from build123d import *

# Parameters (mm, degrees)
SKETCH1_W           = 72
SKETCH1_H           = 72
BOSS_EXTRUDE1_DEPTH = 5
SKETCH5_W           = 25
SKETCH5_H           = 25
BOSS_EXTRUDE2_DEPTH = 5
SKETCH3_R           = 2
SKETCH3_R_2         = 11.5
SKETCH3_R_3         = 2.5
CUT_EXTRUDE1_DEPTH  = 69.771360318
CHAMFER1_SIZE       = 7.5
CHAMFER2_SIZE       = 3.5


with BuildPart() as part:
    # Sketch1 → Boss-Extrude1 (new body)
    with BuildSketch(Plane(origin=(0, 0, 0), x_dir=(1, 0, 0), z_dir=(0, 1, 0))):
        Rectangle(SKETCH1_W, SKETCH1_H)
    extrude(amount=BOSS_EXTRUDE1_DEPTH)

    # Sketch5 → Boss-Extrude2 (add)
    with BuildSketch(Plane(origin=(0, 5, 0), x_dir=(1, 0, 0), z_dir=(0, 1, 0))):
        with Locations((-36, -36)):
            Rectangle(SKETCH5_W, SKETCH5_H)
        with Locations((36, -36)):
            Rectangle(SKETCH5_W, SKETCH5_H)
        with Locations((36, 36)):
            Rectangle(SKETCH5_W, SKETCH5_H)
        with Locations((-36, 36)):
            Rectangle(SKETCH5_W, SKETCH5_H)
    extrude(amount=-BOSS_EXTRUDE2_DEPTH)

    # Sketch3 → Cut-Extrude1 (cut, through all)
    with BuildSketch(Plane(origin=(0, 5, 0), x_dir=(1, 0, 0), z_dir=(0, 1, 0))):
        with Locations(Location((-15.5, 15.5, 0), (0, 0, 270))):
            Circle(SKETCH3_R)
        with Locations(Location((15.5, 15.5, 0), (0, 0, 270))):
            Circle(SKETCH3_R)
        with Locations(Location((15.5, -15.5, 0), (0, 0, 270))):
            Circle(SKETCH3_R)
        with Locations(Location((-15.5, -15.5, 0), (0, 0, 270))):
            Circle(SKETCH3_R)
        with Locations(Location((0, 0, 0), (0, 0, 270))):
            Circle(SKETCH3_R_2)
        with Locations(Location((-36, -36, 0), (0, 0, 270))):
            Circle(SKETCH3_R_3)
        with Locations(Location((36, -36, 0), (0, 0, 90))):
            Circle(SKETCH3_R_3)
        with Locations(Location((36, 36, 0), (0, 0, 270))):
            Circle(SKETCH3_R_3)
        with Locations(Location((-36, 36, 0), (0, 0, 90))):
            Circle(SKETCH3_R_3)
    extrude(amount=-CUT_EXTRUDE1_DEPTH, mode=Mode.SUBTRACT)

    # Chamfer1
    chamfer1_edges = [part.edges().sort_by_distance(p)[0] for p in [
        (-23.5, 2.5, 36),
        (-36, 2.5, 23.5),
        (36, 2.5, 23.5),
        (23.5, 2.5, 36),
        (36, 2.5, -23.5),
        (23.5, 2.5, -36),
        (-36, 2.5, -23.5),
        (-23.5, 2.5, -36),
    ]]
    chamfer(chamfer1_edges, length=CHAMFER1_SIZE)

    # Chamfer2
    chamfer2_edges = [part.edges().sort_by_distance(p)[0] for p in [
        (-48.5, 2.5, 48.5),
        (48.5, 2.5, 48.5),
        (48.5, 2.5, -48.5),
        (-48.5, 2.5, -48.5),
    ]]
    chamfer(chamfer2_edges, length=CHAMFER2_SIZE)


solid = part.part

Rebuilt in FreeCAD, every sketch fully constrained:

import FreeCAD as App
import Part
import Sketcher
from FreeCAD import Vector
Q = App.Units.Quantity


def edges_at(feature, points):
    """Names of the edges that pass closest to the given points."""
    edges = feature.Shape.Edges
    near = lambda p: min(range(len(edges)), key=lambda i: edges[i].distToShape(Part.Vertex(*p))[0])
    return sorted({f"Edge{near(p) + 1}" for p in points})


def add_polygon(sketch, points):
    """Adds a closed chain of lines whose ends are joined by coincident constraints."""
    first, n = sketch.GeometryCount, len(points)
    for a, b in zip(points, points[1:] + points[:1]):
        sketch.addGeometry(Part.LineSegment(App.Vector(*a, 0), App.Vector(*b, 0)), False)
    for i in range(n):
        sketch.addConstraint(Sketcher.Constraint("Coincident", first + i, 2, first + (i + 1) % n, 1))

doc = App.newDocument("Part")
body = doc.addObject("PartDesign::Body", "Body")

# Sketch on XZ plane
sketch1 = body.newObject("Sketcher::SketchObject", "Sketch")
sketch1.AttachmentSupport = (doc.getObject("XZ_Plane"), [""])
sketch1.MapMode = "FlatFace"
add_polygon(sketch1, [(-36, -36), (-36, 36), (36, 36), (36, -36)])  # lines 0-3
sketch1.addConstraint(Sketcher.Constraint("Vertical", 0))
sketch1.addConstraint(Sketcher.Constraint("Horizontal", 1))
sketch1.addConstraint(Sketcher.Constraint("Vertical", 2))
sketch1.addConstraint(Sketcher.Constraint("Horizontal", 3))
sketch1.addConstraint(Sketcher.Constraint("Symmetric", 0, 2, 2, 2, -1, 1))
sketch1.addConstraint(Sketcher.Constraint("Equal", 3, 0))
sketch1.addConstraint(Sketcher.Constraint("DistanceX", 1, 1, 1, 2, Q("72 mm")))
pad1 = body.newObject("PartDesign::Pad", "Pad")
pad1.Profile = sketch1
pad1.Length = 5
pad1.Reversed = True

# Sketch on XZ plane
sketch2 = body.newObject("Sketcher::SketchObject", "Sketch001")
sketch2.AttachmentSupport = (doc.getObject("XZ_Plane"), [""])
sketch2.MapMode = "FlatFace"
sketch2.AttachmentOffset = App.Placement(Vector(0, 0, -5), App.Rotation())
add_polygon(sketch2, [(-48, 24), (-48, 48), (-24, 48), (-24, 24)])  # lines 0-3
add_polygon(sketch2, [(24, 24), (24, 48), (48, 48), (48, 24)])  # lines 4-7
add_polygon(sketch2, [(24, -48), (24, -24), (48, -24), (48, -48)])  # lines 8-11
add_polygon(sketch2, [(-48, -48), (-48, -24), (-24, -24), (-24, -48)])  # lines 12-15
sketch2.addConstraint(Sketcher.Constraint("Vertical", 0))
sketch2.addConstraint(Sketcher.Constraint("Horizontal", 1))
sketch2.addConstraint(Sketcher.Constraint("Vertical", 2))
sketch2.addConstraint(Sketcher.Constraint("Horizontal", 3))
sketch2.addConstraint(Sketcher.Constraint("Vertical", 4))
sketch2.addConstraint(Sketcher.Constraint("Horizontal", 5))
sketch2.addConstraint(Sketcher.Constraint("Vertical", 6))
sketch2.addConstraint(Sketcher.Constraint("Horizontal", 7))
sketch2.addConstraint(Sketcher.Constraint("Vertical", 8))
sketch2.addConstraint(Sketcher.Constraint("Horizontal", 9))
sketch2.addConstraint(Sketcher.Constraint("Vertical", 10))
sketch2.addConstraint(Sketcher.Constraint("Horizontal", 11))
sketch2.addConstraint(Sketcher.Constraint("Vertical", 12))
sketch2.addConstraint(Sketcher.Constraint("Horizontal", 13))
sketch2.addConstraint(Sketcher.Constraint("Vertical", 14))
sketch2.addConstraint(Sketcher.Constraint("Horizontal", 15))
sketch2.addConstraint(Sketcher.Constraint("Symmetric", 2, 2, 8, 2, -1, 1))
sketch2.addConstraint(Sketcher.Constraint("Symmetric", 0, 2, 10, 2, -1, 1))
sketch2.addConstraint(Sketcher.Constraint("Symmetric", 6, 2, 12, 2, -1, 1))
sketch2.addConstraint(Sketcher.Constraint("Symmetric", 4, 2, 14, 2, -1, 1))
sketch2.addConstraint(Sketcher.Constraint("Symmetric", 1, 2, 4, 2, -2))
sketch2.addConstraint(Sketcher.Constraint("Symmetric", 3, 2, 6, 2, -2))
sketch2.addConstraint(Sketcher.Constraint("Equal", 15, 0))
sketch2.addConstraint(Sketcher.Constraint("DistanceX", 1, 1, 1, 2, Q("25 mm")))
sketch2.addConstraint(Sketcher.Constraint("DistanceX", 1, 2, 4, 2, Q("47 mm")))
sketch2.addConstraint(Sketcher.Constraint("DistanceY", 8, 2, 7, 2, Q("47 mm")))
pad2 = body.newObject("PartDesign::Pad", "Pad001")
pad2.Profile = sketch2
pad2.Length = 5

# Sketch on XZ plane
sketch3 = body.newObject("Sketcher::SketchObject", "Sketch002")
sketch3.AttachmentSupport = (doc.getObject("XZ_Plane"), [""])
sketch3.MapMode = "FlatFace"
sketch3.AttachmentOffset = App.Placement(Vector(0, 0, -5), App.Rotation())
sketch3.addGeometry(Part.Circle(Vector(-15.5, -15.5, 0), Vector(0, 0, 1), 2), False)
sketch3.addGeometry(Part.Circle(Vector(15.5, -15.5, 0), Vector(0, 0, 1), 2), False)
sketch3.addGeometry(Part.Circle(Vector(15.5, 15.5, 0), Vector(0, 0, 1), 2), False)
sketch3.addGeometry(Part.Circle(Vector(-15.5, 15.5, 0), Vector(0, 0, 1), 2), False)
sketch3.addGeometry(Part.Circle(Vector(0, 0, 0), Vector(0, 0, 1), 11.5), False)
sketch3.addGeometry(Part.Circle(Vector(-36, 36, 0), Vector(0, 0, 1), 2.5), False)
sketch3.addGeometry(Part.Circle(Vector(36, 36, 0), Vector(0, 0, 1), 2.5), False)
sketch3.addGeometry(Part.Circle(Vector(36, -36, 0), Vector(0, 0, 1), 2.5), False)
sketch3.addGeometry(Part.Circle(Vector(-36, -36, 0), Vector(0, 0, 1), 2.5), False)
sketch3.addConstraint(Sketcher.Constraint("Coincident", 4, 3, -1, 1))
sketch3.addConstraint(Sketcher.Constraint("Equal", 0, 1))
sketch3.addConstraint(Sketcher.Constraint("Equal", 1, 2))
sketch3.addConstraint(Sketcher.Constraint("Equal", 2, 3))
sketch3.addConstraint(Sketcher.Constraint("Equal", 5, 6))
sketch3.addConstraint(Sketcher.Constraint("Equal", 6, 7))
sketch3.addConstraint(Sketcher.Constraint("Equal", 7, 8))
sketch3.addConstraint(Sketcher.Constraint("Symmetric", 0, 3, 2, 3, -1, 1))
sketch3.addConstraint(Sketcher.Constraint("Symmetric", 1, 3, 3, 3, -1, 1))
sketch3.addConstraint(Sketcher.Constraint("Symmetric", 5, 3, 7, 3, -1, 1))
sketch3.addConstraint(Sketcher.Constraint("Symmetric", 6, 3, 8, 3, -1, 1))
sketch3.addConstraint(Sketcher.Constraint("Symmetric", 0, 3, 1, 3, -2))
sketch3.addConstraint(Sketcher.Constraint("Symmetric", 5, 3, 6, 3, -2))
sketch3.addConstraint(Sketcher.Constraint("Diameter", 0, Q("4 mm")))
sketch3.addConstraint(Sketcher.Constraint("Diameter", 4, Q("23 mm")))
sketch3.addConstraint(Sketcher.Constraint("Diameter", 5, Q("5 mm")))
sketch3.addConstraint(Sketcher.Constraint("DistanceX", 5, 3, -1, 1, Q("36 mm")))
sketch3.addConstraint(Sketcher.Constraint("DistanceY", -1, 1, 5, 3, Q("36 mm")))
sketch3.addConstraint(Sketcher.Constraint("DistanceX", 0, 3, 1, 3, Q("31 mm")))
sketch3.addConstraint(Sketcher.Constraint("DistanceY", 1, 3, 2, 3, Q("31 mm")))
pocket1 = body.newObject("PartDesign::Pocket", "Pocket")
pocket1.Profile = sketch3
pocket1.Type = "ThroughAll"
pocket1.Reversed = True
doc.recompute()

chamfer = body.newObject("PartDesign::Chamfer", "Chamfer")
chamfer.Base = (pocket1, edges_at(pocket1, [
    (-23.5, 2.5, 36),
    (-36, 2.5, 23.5),
    (36, 2.5, 23.5),
    (23.5, 2.5, 36),
    (36, 2.5, -23.5),
    (23.5, 2.5, -36),
    (-36, 2.5, -23.5),
    (-23.5, 2.5, -36),
]))
chamfer.Size = 7.5
doc.recompute()

chamfer2 = body.newObject("PartDesign::Chamfer", "Chamfer001")
chamfer2.Base = (chamfer, edges_at(chamfer, [
    (-48.5, 2.5, 48.5),
    (48.5, 2.5, 48.5),
    (48.5, 2.5, -48.5),
    (-48.5, 2.5, -48.5),
]))
chamfer2.Size = 3.5

doc.recompute()
